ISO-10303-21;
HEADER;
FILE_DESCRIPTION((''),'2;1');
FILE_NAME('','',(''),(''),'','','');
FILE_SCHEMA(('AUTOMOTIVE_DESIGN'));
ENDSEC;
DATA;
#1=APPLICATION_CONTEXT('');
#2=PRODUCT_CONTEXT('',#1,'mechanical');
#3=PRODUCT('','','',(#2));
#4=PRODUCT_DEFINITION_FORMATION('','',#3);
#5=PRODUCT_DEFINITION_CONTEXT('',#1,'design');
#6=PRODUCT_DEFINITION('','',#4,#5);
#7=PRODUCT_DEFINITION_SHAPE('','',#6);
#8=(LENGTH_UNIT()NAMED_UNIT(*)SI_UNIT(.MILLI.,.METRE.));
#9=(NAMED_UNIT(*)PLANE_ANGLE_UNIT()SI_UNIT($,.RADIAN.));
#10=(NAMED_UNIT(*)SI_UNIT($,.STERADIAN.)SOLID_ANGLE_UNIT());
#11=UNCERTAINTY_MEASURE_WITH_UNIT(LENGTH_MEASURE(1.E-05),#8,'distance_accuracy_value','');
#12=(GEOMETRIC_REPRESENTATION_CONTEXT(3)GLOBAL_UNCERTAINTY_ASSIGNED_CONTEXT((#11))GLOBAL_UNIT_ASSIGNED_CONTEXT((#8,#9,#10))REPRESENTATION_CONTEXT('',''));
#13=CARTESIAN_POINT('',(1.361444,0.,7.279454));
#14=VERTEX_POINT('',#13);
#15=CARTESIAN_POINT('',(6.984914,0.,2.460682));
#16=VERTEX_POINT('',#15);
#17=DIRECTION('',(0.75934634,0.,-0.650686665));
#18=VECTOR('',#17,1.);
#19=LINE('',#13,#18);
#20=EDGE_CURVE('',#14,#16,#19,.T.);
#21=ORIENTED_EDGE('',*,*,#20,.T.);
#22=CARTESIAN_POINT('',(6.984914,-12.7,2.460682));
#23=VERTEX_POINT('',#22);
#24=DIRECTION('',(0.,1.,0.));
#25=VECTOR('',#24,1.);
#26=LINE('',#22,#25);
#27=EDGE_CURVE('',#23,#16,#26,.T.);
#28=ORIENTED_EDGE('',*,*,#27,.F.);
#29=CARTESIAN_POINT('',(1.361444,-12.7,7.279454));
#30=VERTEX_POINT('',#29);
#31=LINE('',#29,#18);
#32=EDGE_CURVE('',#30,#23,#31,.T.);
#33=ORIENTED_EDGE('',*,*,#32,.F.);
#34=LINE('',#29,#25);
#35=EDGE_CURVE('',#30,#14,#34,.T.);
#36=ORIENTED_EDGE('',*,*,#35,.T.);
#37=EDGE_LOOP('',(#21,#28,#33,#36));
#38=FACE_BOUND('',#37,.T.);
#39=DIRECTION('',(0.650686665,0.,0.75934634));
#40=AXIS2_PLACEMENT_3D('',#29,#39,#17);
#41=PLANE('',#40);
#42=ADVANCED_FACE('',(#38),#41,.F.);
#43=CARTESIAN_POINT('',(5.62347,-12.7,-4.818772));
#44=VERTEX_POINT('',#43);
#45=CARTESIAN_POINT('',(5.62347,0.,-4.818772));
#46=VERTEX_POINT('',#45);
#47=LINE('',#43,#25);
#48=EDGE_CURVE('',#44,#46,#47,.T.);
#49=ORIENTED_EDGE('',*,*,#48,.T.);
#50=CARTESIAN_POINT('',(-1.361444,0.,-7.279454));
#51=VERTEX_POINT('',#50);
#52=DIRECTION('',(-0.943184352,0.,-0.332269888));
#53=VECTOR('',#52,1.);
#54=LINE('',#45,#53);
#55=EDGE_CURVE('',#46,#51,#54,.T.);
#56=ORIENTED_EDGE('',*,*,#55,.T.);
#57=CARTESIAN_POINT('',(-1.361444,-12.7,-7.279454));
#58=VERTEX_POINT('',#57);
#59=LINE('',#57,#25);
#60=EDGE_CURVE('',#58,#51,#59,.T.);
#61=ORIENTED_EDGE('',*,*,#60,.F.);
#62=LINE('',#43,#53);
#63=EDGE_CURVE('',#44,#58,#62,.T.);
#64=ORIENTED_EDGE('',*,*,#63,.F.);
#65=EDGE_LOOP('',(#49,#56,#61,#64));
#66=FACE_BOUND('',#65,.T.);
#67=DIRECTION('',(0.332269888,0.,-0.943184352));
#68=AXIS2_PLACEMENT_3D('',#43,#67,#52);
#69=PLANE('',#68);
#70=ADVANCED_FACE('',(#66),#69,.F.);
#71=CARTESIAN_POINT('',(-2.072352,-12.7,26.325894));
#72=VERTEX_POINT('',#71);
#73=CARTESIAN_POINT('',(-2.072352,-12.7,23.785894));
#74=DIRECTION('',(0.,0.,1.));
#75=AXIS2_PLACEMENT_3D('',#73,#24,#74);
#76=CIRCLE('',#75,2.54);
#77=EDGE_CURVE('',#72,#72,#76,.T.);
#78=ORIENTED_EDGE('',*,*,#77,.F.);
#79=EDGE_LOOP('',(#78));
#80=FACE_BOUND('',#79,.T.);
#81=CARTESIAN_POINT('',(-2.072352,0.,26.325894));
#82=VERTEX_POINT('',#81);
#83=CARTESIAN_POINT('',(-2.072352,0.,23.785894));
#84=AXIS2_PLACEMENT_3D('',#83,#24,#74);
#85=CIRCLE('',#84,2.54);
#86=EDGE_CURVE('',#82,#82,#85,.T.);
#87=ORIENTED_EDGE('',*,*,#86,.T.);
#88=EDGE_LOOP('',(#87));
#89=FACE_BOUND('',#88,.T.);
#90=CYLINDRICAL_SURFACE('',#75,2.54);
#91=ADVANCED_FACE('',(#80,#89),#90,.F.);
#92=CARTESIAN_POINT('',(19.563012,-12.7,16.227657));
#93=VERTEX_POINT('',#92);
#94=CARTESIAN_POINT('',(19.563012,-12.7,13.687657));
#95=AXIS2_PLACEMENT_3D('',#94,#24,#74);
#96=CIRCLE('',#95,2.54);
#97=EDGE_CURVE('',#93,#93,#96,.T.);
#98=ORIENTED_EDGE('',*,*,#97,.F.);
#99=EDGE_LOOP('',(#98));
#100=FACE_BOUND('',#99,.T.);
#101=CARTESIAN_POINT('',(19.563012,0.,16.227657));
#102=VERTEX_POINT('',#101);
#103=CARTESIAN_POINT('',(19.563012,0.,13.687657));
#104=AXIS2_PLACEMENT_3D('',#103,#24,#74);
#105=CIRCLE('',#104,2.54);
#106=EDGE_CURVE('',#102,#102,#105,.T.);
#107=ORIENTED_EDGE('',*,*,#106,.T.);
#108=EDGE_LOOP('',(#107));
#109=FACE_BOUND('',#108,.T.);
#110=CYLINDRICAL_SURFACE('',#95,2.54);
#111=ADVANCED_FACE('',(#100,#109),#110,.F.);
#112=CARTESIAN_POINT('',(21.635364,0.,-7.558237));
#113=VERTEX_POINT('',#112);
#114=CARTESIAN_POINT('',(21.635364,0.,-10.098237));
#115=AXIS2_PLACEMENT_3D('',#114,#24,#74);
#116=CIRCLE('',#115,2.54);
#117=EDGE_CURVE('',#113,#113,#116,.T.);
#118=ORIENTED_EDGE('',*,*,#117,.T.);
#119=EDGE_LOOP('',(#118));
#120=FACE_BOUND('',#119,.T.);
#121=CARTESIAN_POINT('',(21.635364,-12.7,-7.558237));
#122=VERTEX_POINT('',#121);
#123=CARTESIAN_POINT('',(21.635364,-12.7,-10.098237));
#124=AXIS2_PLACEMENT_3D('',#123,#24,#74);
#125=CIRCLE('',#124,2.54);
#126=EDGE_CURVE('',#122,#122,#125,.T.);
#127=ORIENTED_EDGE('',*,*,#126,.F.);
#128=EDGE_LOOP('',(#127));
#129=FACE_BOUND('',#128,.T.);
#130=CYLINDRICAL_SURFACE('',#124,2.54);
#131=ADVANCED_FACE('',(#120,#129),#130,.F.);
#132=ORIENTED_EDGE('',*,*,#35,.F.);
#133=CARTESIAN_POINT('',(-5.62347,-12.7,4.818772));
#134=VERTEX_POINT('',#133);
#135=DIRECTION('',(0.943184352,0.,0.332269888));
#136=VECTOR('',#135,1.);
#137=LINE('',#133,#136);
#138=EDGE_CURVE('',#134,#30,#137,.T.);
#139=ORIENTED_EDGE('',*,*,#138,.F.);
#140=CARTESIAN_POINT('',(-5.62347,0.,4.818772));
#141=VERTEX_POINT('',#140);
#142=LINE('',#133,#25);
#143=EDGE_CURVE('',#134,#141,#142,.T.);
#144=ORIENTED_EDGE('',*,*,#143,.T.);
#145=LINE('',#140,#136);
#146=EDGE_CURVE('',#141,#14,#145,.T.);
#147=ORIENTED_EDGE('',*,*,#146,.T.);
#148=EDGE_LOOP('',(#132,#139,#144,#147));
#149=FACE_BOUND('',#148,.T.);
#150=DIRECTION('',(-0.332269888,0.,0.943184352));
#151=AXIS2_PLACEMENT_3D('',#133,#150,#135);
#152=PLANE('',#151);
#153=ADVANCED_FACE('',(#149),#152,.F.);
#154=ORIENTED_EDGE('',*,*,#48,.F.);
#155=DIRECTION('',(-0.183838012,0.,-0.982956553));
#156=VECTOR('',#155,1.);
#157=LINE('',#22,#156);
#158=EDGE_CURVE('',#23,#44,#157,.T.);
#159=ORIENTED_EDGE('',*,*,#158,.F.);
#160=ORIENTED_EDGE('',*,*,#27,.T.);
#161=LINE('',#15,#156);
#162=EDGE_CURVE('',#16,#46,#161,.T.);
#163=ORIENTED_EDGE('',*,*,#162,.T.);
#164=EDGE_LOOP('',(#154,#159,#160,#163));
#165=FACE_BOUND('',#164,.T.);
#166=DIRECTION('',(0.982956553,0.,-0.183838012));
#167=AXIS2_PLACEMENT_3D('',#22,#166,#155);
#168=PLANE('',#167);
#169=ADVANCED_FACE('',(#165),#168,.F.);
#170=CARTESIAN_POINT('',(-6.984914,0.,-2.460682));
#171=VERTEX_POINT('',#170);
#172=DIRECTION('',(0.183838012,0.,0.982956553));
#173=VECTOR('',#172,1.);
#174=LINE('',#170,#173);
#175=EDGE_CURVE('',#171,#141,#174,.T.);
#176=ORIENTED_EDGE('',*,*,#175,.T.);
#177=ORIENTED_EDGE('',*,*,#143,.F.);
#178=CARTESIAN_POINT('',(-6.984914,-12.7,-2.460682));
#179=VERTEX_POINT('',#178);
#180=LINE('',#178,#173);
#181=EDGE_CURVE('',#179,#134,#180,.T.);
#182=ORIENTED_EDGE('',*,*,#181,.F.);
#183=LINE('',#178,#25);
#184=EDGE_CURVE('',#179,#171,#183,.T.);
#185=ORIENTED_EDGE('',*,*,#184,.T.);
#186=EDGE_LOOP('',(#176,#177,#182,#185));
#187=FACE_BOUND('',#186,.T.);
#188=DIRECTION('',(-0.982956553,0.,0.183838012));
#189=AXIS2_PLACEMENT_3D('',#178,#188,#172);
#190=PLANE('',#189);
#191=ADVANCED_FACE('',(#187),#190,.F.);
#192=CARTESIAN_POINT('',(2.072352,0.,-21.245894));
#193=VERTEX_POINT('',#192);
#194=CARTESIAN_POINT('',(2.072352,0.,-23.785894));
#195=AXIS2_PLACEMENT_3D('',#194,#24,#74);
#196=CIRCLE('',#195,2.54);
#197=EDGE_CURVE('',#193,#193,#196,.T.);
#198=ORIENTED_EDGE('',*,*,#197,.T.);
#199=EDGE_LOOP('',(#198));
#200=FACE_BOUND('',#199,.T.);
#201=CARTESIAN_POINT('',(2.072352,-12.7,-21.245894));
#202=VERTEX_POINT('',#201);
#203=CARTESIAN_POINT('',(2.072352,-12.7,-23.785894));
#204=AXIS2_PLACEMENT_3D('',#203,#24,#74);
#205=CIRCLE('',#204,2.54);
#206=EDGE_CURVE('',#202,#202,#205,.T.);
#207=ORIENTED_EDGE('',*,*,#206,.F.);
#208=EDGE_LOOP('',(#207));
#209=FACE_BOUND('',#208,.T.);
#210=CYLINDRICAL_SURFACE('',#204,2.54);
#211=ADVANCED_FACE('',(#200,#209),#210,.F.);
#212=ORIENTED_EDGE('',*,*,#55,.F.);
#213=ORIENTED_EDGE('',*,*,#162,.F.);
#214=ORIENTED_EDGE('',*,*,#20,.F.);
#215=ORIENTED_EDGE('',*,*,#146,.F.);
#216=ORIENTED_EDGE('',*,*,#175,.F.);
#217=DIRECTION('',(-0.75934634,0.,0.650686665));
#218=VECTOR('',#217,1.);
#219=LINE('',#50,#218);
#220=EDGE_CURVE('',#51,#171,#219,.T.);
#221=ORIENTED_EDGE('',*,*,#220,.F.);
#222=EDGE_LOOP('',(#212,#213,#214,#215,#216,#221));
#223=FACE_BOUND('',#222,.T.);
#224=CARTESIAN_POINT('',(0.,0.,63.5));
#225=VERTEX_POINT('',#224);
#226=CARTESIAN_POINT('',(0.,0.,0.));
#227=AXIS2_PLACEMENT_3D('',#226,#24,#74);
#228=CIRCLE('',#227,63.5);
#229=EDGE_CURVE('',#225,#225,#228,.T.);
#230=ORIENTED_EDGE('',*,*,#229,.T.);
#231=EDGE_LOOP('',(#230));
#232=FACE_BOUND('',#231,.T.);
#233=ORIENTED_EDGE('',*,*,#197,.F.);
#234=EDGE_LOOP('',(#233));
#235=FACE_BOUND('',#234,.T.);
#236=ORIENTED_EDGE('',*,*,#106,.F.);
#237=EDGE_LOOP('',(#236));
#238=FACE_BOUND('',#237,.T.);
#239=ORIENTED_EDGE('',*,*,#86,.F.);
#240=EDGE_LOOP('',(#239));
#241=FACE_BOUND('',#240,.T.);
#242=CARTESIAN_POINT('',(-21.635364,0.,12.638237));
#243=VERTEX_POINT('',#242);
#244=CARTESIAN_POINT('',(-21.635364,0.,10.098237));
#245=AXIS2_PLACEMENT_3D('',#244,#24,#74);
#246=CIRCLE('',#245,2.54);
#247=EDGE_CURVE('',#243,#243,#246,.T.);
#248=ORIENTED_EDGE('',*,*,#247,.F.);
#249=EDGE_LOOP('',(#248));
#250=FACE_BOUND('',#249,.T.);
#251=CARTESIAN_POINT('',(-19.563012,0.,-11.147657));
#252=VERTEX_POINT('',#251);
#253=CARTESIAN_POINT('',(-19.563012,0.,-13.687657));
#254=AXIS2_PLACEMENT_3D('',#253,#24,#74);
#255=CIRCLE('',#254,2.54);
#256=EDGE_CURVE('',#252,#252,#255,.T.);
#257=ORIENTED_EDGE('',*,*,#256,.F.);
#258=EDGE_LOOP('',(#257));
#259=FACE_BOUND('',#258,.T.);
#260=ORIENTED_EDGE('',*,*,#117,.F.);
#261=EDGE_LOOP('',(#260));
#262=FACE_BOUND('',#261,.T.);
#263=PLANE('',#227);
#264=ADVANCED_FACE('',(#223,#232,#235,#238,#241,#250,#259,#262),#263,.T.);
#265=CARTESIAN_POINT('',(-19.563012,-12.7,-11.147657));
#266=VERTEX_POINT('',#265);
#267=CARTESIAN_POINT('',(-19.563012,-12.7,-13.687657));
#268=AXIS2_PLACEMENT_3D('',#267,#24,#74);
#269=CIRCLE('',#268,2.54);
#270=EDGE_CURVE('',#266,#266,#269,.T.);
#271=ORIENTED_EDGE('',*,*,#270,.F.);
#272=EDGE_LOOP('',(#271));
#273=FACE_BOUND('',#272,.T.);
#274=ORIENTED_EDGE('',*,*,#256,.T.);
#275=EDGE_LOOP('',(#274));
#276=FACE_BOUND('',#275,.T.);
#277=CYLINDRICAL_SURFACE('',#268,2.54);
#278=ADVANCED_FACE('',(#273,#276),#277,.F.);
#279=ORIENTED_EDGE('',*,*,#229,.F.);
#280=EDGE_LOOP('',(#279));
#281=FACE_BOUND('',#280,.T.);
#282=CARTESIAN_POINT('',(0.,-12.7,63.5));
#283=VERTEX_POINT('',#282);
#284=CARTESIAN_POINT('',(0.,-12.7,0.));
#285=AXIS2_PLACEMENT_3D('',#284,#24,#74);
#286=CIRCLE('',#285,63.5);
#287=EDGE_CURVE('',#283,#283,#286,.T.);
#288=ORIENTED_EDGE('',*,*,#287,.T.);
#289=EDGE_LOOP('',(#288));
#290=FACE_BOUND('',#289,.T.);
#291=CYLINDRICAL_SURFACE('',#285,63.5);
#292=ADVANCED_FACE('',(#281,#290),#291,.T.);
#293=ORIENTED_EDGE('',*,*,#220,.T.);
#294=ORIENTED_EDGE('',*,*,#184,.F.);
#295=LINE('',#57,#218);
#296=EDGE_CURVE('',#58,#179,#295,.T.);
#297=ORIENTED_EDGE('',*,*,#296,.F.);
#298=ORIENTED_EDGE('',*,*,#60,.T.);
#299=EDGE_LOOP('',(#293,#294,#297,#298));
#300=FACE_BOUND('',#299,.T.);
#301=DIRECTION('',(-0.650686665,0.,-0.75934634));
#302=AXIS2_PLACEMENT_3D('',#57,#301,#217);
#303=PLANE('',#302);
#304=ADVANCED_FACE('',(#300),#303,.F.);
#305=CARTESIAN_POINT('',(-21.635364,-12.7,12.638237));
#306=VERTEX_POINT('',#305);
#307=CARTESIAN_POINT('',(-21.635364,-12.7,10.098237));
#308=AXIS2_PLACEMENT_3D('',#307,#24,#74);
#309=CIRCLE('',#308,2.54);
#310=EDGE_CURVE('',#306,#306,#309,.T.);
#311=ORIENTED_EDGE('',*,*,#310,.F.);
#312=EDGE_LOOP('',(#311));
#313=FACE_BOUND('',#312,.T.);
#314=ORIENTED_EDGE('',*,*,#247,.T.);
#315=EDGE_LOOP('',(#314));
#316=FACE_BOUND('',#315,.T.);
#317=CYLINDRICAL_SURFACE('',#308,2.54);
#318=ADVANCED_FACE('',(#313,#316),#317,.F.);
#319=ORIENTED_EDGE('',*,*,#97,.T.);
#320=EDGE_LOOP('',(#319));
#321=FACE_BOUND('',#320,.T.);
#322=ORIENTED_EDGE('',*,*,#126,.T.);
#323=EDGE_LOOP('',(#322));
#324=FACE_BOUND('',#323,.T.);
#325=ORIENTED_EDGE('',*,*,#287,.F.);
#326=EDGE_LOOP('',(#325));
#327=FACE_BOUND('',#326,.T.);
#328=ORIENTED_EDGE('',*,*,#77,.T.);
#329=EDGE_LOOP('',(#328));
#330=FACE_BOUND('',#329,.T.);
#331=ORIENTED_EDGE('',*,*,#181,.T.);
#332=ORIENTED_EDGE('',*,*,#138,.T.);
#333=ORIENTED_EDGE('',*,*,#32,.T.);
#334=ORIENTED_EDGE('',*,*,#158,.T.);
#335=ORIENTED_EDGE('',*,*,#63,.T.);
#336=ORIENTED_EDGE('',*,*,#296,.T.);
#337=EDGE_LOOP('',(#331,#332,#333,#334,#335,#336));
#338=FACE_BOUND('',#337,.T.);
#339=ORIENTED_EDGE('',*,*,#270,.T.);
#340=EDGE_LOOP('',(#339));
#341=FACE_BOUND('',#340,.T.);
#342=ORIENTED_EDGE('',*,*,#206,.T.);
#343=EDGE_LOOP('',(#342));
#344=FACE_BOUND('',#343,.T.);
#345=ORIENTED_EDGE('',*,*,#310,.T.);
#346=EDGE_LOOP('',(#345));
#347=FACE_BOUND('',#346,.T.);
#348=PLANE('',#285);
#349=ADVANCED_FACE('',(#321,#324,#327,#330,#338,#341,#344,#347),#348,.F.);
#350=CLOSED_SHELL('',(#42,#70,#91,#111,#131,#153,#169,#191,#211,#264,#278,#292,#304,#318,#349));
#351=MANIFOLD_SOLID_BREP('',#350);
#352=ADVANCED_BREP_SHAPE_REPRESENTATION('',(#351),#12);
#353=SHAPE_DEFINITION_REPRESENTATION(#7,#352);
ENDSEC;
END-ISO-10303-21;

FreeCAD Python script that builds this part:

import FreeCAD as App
import Part
import Sketcher
Q = App.Units.Quantity


def add_polygon(sketch, points):
    """Adds a closed chain of lines whose ends are joined by coincident constraints."""
    first, n = sketch.GeometryCount, len(points)
    for a, b in zip(points, points[1:] + points[:1]):
        sketch.addGeometry(Part.LineSegment(App.Vector(*a, 0), App.Vector(*b, 0)), False)
    for i in range(n):
        sketch.addConstraint(Sketcher.Constraint("Coincident", first + i, 2, first + (i + 1) % n, 1))

doc = App.newDocument("Part")
body = doc.addObject("PartDesign::Body", "Body")

sketch1 = body.newObject("Sketcher::SketchObject", "Sketch")
sketch1.AttachmentSupport = (doc.getObject("XZ_Plane"), [""])
sketch1.MapMode = "FlatFace"
sketch1.addGeometry(Part.Circle(App.Vector(0, 0, 0), App.Vector(0, 0, 1), 63.5), False)
sketch1.addConstraint(Sketcher.Constraint("Coincident", 0, 3, -1, 1))
sketch1.addConstraint(Sketcher.Constraint("Diameter", 0, Q("5 in")))
pad1 = body.newObject("PartDesign::Pad", "Pad")
pad1.Profile = sketch1
pad1.Length = Q("0.5 in")

sketch2 = body.newObject("Sketcher::SketchObject", "Sketch001")
sketch2.AttachmentSupport = (doc.getObject("XZ_Plane"), [""])
sketch2.MapMode = "FlatFace"
sketch2.addGeometry(Part.Circle(App.Vector(19.563012, 13.687657, 0), App.Vector(0, 0, 1), 2.54), False)
sketch2.addGeometry(Part.Circle(App.Vector(21.635364, -10.098237, 0), App.Vector(0, 0, 1), 2.54), False)
sketch2.addGeometry(Part.Circle(App.Vector(2.072352, -23.785894, 0), App.Vector(0, 0, 1), 2.54), False)
sketch2.addGeometry(Part.Circle(App.Vector(-19.563012, -13.687657, 0), App.Vector(0, 0, 1), 2.54), False)
sketch2.addGeometry(Part.Circle(App.Vector(-21.635364, 10.098237, 0), App.Vector(0, 0, 1), 2.54), False)
sketch2.addGeometry(Part.Circle(App.Vector(-2.072352, 23.785894, 0), App.Vector(0, 0, 1), 2.54), False)
sketch2.addConstraint(Sketcher.Constraint("Equal", 0, 1))
sketch2.addConstraint(Sketcher.Constraint("Equal", 1, 2))
sketch2.addConstraint(Sketcher.Constraint("Equal", 2, 3))
sketch2.addConstraint(Sketcher.Constraint("Equal", 3, 4))
sketch2.addConstraint(Sketcher.Constraint("Equal", 4, 5))
sketch2.addConstraint(Sketcher.Constraint("Symmetric", 0, 3, 3, 3, -1, 1))
sketch2.addConstraint(Sketcher.Constraint("Symmetric", 1, 3, 4, 3, -1, 1))
sketch2.addConstraint(Sketcher.Constraint("Symmetric", 2, 3, 5, 3, -1, 1))
sketch2.addConstraint(Sketcher.Constraint("Diameter", 0, Q("0.2 in")))
sketch2.addConstraint(Sketcher.Constraint("DistanceX", -1, 1, 0, 3, Q("19.563012 mm")))
sketch2.addConstraint(Sketcher.Constraint("DistanceX", 2, 3, 1, 3, Q("19.563012 mm")))
sketch2.addConstraint(Sketcher.Constraint("DistanceX", 2, 3, 0, 3, Q("17.49066 mm")))
sketch2.addConstraint(Sketcher.Constraint("DistanceY", 2, 3, 0, 3, Q("37.47355 mm")))
sketch2.addConstraint(Sketcher.Constraint("DistanceY", 3, 3, 1, 3, Q("3.589419 mm")))
sketch2.addConstraint(Sketcher.Constraint("DistanceY", -1, 1, 0, 3, Q("13.687657 mm")))
pocket1 = body.newObject("PartDesign::Pocket", "Pocket")
pocket1.Profile = sketch2
pocket1.Type = "ThroughAll"
pocket1.Reversed = True

sketch3 = body.newObject("Sketcher::SketchObject", "Sketch002")
sketch3.AttachmentSupport = (doc.getObject("XZ_Plane"), [""])
sketch3.MapMode = "FlatFace"
add_polygon(sketch3, [(-5.62347, 4.818772), (1.361444, 7.279454), (6.984914, 2.460682), (5.62347, -4.818772), (-1.361444, -7.279454), (-6.984914, -2.460682)])
sketch3.addConstraint(Sketcher.Constraint("Symmetric", 0, 2, 3, 2, -1, 1))
sketch3.addConstraint(Sketcher.Constraint("Symmetric", 1, 2, 4, 2, -1, 1))
sketch3.addConstraint(Sketcher.Constraint("Symmetric", 2, 2, 5, 2, -1, 1))
sketch3.addConstraint(Sketcher.Constraint("Equal", 0, 1))
sketch3.addConstraint(Sketcher.Constraint("Equal", 1, 2))
sketch3.addConstraint(Sketcher.Constraint("DistanceX", -1, 1, 0, 2, Q("0.0536002 in")))
sketch3.addConstraint(Sketcher.Constraint("DistanceX", 2, 2, 1, 2, Q("0.0536002 in")))
sketch3.addConstraint(Sketcher.Constraint("Distance", 0, Q("7.405672 mm")))
sketch3.addConstraint(Sketcher.Constraint("DistanceY", -1, 1, 1, 2, Q("2.460682 mm")))
pocket2 = body.newObject("PartDesign::Pocket", "Pocket001")
pocket2.Profile = sketch3
pocket2.Type = "ThroughAll"
pocket2.Reversed = True

doc.recompute()
